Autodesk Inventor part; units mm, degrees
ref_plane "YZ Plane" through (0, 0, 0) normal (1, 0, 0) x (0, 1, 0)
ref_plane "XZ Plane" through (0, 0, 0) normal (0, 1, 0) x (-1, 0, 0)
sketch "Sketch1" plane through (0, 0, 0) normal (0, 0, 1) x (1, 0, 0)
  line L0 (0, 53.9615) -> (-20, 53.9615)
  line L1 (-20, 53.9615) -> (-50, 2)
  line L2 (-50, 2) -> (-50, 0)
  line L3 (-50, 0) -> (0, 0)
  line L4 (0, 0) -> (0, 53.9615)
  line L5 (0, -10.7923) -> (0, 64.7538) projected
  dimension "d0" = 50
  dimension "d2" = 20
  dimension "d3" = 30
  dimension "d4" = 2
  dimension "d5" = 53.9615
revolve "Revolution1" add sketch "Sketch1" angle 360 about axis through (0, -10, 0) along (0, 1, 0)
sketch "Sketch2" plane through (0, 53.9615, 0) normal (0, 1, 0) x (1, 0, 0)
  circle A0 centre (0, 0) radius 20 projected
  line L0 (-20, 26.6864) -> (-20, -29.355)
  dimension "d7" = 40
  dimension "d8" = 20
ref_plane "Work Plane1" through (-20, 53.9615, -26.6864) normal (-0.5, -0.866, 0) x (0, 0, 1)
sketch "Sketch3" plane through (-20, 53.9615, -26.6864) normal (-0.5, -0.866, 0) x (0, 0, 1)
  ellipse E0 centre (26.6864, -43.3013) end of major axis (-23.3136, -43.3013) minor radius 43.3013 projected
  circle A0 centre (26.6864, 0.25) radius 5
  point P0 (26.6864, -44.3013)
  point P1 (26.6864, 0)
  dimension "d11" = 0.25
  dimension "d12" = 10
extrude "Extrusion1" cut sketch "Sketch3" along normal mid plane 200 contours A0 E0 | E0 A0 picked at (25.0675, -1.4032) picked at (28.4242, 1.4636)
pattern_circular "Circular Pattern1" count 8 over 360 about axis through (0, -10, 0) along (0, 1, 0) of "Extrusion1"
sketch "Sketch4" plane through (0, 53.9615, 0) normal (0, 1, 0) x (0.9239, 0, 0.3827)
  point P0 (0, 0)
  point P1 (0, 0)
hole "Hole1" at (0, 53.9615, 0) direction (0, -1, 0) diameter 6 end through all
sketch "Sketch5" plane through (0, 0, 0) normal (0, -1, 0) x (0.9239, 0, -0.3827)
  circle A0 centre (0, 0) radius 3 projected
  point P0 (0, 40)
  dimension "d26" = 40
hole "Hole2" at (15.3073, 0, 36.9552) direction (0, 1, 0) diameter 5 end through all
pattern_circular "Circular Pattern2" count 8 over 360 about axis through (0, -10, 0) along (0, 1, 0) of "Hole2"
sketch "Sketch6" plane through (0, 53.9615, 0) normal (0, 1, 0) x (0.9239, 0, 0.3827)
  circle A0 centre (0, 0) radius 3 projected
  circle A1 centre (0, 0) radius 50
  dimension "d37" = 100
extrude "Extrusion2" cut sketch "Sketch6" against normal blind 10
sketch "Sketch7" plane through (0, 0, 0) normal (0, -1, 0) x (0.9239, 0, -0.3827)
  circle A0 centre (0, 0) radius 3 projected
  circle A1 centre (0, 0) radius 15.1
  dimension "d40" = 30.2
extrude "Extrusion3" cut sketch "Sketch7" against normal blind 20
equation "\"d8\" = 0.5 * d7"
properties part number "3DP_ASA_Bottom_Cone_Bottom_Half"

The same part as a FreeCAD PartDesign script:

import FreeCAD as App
import Part
import Sketcher
Q = App.Units.Quantity

doc = App.newDocument("Part")
body = doc.addObject("PartDesign::Body", "Body")

sketch1 = body.newObject("Sketcher::SketchObject", "Sketch")
sketch1.AttachmentSupport = (doc.getObject("XY_Plane"), [""])
sketch1.MapMode = "FlatFace"
sketch1.addGeometry(Part.LineSegment(App.Vector(0, 0, 0), App.Vector(0, 54, 0)), False)
sketch1.addGeometry(Part.LineSegment(App.Vector(0, 54, 0), App.Vector(-20, 54, 0)), False)
sketch1.addGeometry(Part.LineSegment(App.Vector(-20, 54, 0), App.Vector(-50, 2, 0)), False)
sketch1.addGeometry(Part.LineSegment(App.Vector(-50, 2, 0), App.Vector(-50, 0, 0)), False)
sketch1.addGeometry(Part.LineSegment(App.Vector(-50, 0, 0), App.Vector(0, 0, 0)), False)
sketch1.addConstraint(Sketcher.Constraint("Coincident", 0, 2, 1, 1))
sketch1.addConstraint(Sketcher.Constraint("Coincident", 1, 2, 2, 1))
sketch1.addConstraint(Sketcher.Constraint("Coincident", 2, 2, 3, 1))
sketch1.addConstraint(Sketcher.Constraint("Coincident", 3, 2, 4, 1))
sketch1.addConstraint(Sketcher.Constraint("Coincident", 4, 2, 0, 1))
sketch1.addConstraint(Sketcher.Constraint("Vertical", 0))
sketch1.addConstraint(Sketcher.Constraint("Horizontal", 1))
sketch1.addConstraint(Sketcher.Constraint("Vertical", 3))
sketch1.addConstraint(Sketcher.Constraint("Horizontal", 4))
sketch1.addConstraint(Sketcher.Constraint("Coincident", 4, 2, -1, 1))
sketch1.addConstraint(Sketcher.Constraint("DistanceX", 1, 2, 1, 1, Q("20 mm")))
sketch1.addConstraint(Sketcher.Constraint("DistanceX", 4, 1, 4, 2, Q("50 mm")))
sketch1.addConstraint(Sketcher.Constraint("DistanceY", 3, 2, 3, 1, Q("2 mm")))
sketch1.addConstraint(Sketcher.Constraint("Angle", 2, Q("-120 deg")))
revolution = body.newObject("PartDesign::Revolution", "Revolution")
revolution.Profile = sketch1
revolution.ReferenceAxis = (sketch1, ["V_Axis"])
revolution.Angle = 360

sketch2 = body.newObject("Sketcher::SketchObject", "Sketch001")
sketch2.Placement = App.Placement(App.Vector(-20, 53.9615, -26.6864), App.Rotation(App.Vector(0, 0, 1), App.Vector(-0.866025404, 0.5, 0), App.Vector(-0.5, -0.866025404, 0), "ZXY"))
sketch2.addGeometry(Part.Circle(App.Vector(27, 0, 0), App.Vector(0, 0, 1), 5), False)
sketch2.addConstraint(Sketcher.Constraint("Diameter", 0, Q("10 mm")))
sketch2.addConstraint(Sketcher.Constraint("DistanceY", -1, 1, 0, 3, Q("0.25 mm")))
sketch2.addConstraint(Sketcher.Constraint("DistanceX", -1, 1, 0, 3, Q("26.6864 mm")))
pocket1 = body.newObject("PartDesign::Pocket", "Pocket")
pocket1.Profile = sketch2
pocket1.Length = 200
pocket1.Midplane = True
doc.recompute()

polarpattern = body.newObject("PartDesign::PolarPattern", "PolarPattern")
polarpattern.Originals = [pocket1]
polarpattern.Axis = (doc.getObject("Y_Axis"), [""])
polarpattern.Angle = 360
polarpattern.Occurrences = 8
body.Tip = polarpattern

sketch3 = body.newObject("Sketcher::SketchObject", "Sketch002")
sketch3.AttachmentSupport = (doc.getObject("XZ_Plane"), [""])
sketch3.MapMode = "FlatFace"
sketch3.AttachmentOffset = App.Placement(App.Vector(0, 0, -53.9615), App.Rotation())
sketch3.addGeometry(Part.Circle(App.Vector(0, 0, 0), App.Vector(0, 0, 1), 3), False)
sketch3.addConstraint(Sketcher.Constraint("Coincident", 0, 3, -1, 1))
sketch3.addConstraint(Sketcher.Constraint("Diameter", 0, Q("6 mm")))
doc.recompute()
hole = body.newObject("PartDesign::Hole", "Hole")
hole.Profile = sketch3
hole.ThreadType = "None"
hole.Diameter = 6
hole.DepthType = "ThroughAll"
hole.Reversed = True

sketch4 = body.newObject("Sketcher::SketchObject", "Sketch003")
sketch4.AttachmentSupport = (doc.getObject("XZ_Plane"), [""])
sketch4.MapMode = "FlatFace"
sketch4.addGeometry(Part.Circle(App.Vector(15.3, 37, 0), App.Vector(0, 0, 1), 2.5), False)
sketch4.addConstraint(Sketcher.Constraint("Diameter", 0, Q("5 mm")))
sketch4.addConstraint(Sketcher.Constraint("DistanceX", -1, 1, 0, 3, Q("15.3073 mm")))
sketch4.addConstraint(Sketcher.Constraint("DistanceY", -1, 1, 0, 3, Q("36.9552 mm")))
doc.recompute()
hole2 = body.newObject("PartDesign::Hole", "Hole001")
hole2.Profile = sketch4
hole2.ThreadType = "None"
hole2.Diameter = 5
hole2.DepthType = "ThroughAll"
doc.recompute()

polarpattern2 = body.newObject("PartDesign::PolarPattern", "PolarPattern001")
polarpattern2.Originals = [hole2]
polarpattern2.Axis = (doc.getObject("Y_Axis"), [""])
polarpattern2.Angle = 360
polarpattern2.Occurrences = 8
body.Tip = polarpattern2

sketch5 = body.newObject("Sketcher::SketchObject", "Sketch004")
sketch5.AttachmentSupport = (doc.getObject("XZ_Plane"), [""])
sketch5.MapMode = "FlatFace"
sketch5.AttachmentOffset = App.Placement(App.Vector(0, 0, -53.9615), App.Rotation())
sketch5.addGeometry(Part.Circle(App.Vector(0, 0, 0), App.Vector(0, 0, 1), 50), False)
sketch5.addGeometry(Part.Circle(App.Vector(0, 0, 0), App.Vector(0, 0, 1), 3), False)
sketch5.addConstraint(Sketcher.Constraint("Coincident", 0, 3, -1, 1))
sketch5.addConstraint(Sketcher.Constraint("Coincident", 1, 3, -1, 1))
sketch5.addConstraint(Sketcher.Constraint("Diameter", 0, Q("100 mm")))
sketch5.addConstraint(Sketcher.Constraint("Diameter", 1, Q("6 mm")))
pocket2 = body.newObject("PartDesign::Pocket", "Pocket001")
pocket2.Profile = sketch5
pocket2.Length = 10
pocket2.Reversed = True

sketch6 = body.newObject("Sketcher::SketchObject", "Sketch005")
sketch6.AttachmentSupport = (doc.getObject("XZ_Plane"), [""])
sketch6.MapMode = "FlatFace"
sketch6.addGeometry(Part.Circle(App.Vector(0, 0, 0), App.Vector(0, 0, 1), 15.1), False)
sketch6.addGeometry(Part.Circle(App.Vector(0, 0, 0), App.Vector(0, 0, 1), 3), False)
sketch6.addConstraint(Sketcher.Constraint("Coincident", 0, 3, -1, 1))
sketch6.addConstraint(Sketcher.Constraint("Coincident", 1, 3, -1, 1))
sketch6.addConstraint(Sketcher.Constraint("Diameter", 0, Q("30.2 mm")))
sketch6.addConstraint(Sketcher.Constraint("Diameter", 1, Q("6 mm")))
pocket3 = body.newObject("PartDesign::Pocket", "Pocket002")
pocket3.Profile = sketch6
pocket3.Length = 20

doc.recompute()
